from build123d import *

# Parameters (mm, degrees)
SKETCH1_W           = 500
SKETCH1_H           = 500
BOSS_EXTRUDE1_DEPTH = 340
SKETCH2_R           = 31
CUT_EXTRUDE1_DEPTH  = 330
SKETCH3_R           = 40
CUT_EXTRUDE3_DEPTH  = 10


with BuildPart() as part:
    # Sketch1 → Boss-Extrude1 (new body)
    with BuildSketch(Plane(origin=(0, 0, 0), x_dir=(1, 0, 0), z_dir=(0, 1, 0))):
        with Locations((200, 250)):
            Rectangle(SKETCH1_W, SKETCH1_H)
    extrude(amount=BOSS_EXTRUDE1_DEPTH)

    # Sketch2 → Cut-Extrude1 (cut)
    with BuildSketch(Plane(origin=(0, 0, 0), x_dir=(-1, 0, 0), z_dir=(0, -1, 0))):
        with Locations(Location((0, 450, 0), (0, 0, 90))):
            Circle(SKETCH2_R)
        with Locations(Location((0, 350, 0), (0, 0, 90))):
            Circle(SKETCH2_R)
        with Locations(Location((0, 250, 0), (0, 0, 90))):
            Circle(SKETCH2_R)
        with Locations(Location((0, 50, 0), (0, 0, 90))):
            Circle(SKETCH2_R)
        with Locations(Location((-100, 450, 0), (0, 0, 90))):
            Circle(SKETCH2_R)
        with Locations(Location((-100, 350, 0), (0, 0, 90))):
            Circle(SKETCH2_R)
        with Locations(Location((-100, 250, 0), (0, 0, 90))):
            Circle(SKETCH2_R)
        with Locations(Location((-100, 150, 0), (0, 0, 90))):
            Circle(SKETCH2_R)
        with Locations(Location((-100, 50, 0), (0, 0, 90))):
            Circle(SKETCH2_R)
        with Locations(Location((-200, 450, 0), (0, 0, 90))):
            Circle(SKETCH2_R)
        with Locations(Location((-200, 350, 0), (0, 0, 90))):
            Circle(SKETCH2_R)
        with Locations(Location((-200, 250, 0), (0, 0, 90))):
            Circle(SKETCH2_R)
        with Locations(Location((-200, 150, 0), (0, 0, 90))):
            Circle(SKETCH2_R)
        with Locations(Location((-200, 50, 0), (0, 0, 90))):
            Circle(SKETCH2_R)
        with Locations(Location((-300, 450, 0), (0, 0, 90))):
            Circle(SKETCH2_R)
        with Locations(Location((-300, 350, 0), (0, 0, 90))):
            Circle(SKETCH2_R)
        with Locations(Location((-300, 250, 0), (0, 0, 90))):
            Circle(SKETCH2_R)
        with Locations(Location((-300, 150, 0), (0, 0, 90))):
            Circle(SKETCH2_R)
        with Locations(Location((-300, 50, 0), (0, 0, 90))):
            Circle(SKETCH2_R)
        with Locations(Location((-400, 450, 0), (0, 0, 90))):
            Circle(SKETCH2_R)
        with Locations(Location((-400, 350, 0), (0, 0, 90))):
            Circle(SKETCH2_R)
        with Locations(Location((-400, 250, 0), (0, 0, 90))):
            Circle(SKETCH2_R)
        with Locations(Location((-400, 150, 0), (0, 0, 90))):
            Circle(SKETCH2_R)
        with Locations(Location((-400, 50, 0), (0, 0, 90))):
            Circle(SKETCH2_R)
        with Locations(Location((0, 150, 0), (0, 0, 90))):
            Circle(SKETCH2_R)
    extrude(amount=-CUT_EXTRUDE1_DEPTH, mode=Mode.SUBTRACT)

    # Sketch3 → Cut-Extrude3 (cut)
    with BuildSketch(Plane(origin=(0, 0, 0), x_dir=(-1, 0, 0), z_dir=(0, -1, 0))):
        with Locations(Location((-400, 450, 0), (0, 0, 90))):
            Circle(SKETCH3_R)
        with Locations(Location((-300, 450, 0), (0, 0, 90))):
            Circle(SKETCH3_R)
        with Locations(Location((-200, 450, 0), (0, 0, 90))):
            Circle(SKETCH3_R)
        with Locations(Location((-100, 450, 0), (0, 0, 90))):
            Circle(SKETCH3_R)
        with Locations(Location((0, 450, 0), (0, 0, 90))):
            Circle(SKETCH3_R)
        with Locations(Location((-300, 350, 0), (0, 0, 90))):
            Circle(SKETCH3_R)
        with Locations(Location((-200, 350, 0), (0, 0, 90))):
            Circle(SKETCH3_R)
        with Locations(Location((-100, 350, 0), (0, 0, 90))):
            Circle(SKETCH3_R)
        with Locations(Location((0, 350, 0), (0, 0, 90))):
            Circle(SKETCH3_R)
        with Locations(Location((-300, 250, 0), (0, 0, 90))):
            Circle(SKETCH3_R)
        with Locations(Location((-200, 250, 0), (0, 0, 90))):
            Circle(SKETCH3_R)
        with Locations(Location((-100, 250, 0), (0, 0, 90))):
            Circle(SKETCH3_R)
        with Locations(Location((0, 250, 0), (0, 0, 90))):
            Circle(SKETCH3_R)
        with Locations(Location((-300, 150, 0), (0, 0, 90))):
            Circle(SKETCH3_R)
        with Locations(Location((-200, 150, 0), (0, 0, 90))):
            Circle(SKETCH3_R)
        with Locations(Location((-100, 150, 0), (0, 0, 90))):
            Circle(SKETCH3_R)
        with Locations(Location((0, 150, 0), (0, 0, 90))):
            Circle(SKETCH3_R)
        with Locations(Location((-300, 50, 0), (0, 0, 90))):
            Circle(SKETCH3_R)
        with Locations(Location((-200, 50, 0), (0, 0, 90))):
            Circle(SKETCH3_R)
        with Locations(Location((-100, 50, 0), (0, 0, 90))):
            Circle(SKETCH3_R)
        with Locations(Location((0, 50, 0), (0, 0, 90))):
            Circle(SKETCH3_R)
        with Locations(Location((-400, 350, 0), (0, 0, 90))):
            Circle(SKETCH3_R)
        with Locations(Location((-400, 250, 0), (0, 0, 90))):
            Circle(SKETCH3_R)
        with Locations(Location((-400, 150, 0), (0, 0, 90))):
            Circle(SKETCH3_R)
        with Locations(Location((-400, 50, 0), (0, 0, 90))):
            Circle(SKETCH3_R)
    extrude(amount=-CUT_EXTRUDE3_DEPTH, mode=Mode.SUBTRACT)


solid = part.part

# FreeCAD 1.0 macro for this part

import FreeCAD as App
import Part
import Sketcher

V = App.Vector


def add_polygon(sketch, points):
    """Adds a closed chain of lines whose ends are joined by coincident constraints."""
    first, n = sketch.GeometryCount, len(points)
    for a, b in zip(points, points[1:] + points[:1]):
        sketch.addGeometry(Part.LineSegment(App.Vector(*a, 0), App.Vector(*b, 0)), False)
    for i in range(n):
        sketch.addConstraint(Sketcher.Constraint("Coincident", first + i, 2, first + (i + 1) % n, 1))

doc = App.newDocument("Part")
body = doc.addObject("PartDesign::Body", "Body")

sketch1 = body.newObject("Sketcher::SketchObject", "Sketch")
sketch1.AttachmentSupport = (doc.getObject("XZ_Plane"), [""])
sketch1.MapMode = "FlatFace"
add_polygon(sketch1, [(-50, -500), (-50, 0), (450, 0), (450, -500)])
sketch1.addConstraint(Sketcher.Constraint("Vertical", 0))
sketch1.addConstraint(Sketcher.Constraint("Horizontal", 1))
sketch1.addConstraint(Sketcher.Constraint("Vertical", 2))
sketch1.addConstraint(Sketcher.Constraint("Horizontal", 3))
sketch1.addConstraint(Sketcher.Constraint("PointOnObject", 0, 2, -1))
sketch1.addConstraint(Sketcher.Constraint("Equal", 3, 0))
sketch1.addConstraint(Sketcher.Constraint("DistanceX", 1, 1, 1, 2, 500.0))
sketch1.addConstraint(Sketcher.Constraint("DistanceX", 0, 2, -1, 1, 50.0))
pad1 = body.newObject("PartDesign::Pad", "Pad")
pad1.Profile = sketch1
pad1.Length = 340
pad1.Reversed = True

sketch2 = body.newObject("Sketcher::SketchObject", "Sketch001")
sketch2.AttachmentSupport = (doc.getObject("XZ_Plane"), [""])
sketch2.MapMode = "FlatFace"
sketch2.addGeometry(Part.Circle(V(0, -450, 0), V(0, 0, 1), 31), False)
sketch2.addGeometry(Part.Circle(V(0, -350, 0), V(0, 0, 1), 31), False)
sketch2.addGeometry(Part.Circle(V(0, -250, 0), V(0, 0, 1), 31), False)
sketch2.addGeometry(Part.Circle(V(0, -50, 0), V(0, 0, 1), 31), False)
sketch2.addGeometry(Part.Circle(V(100, -450, 0), V(0, 0, 1), 31), False)
sketch2.addGeometry(Part.Circle(V(100, -350, 0), V(0, 0, 1), 31), False)
sketch2.addGeometry(Part.Circle(V(100, -250, 0), V(0, 0, 1), 31), False)
sketch2.addGeometry(Part.Circle(V(100, -150, 0), V(0, 0, 1), 31), False)
sketch2.addGeometry(Part.Circle(V(100, -50, 0), V(0, 0, 1), 31), False)
sketch2.addGeometry(Part.Circle(V(200, -450, 0), V(0, 0, 1), 31), False)
sketch2.addGeometry(Part.Circle(V(200, -350, 0), V(0, 0, 1), 31), False)
sketch2.addGeometry(Part.Circle(V(200, -250, 0), V(0, 0, 1), 31), False)
sketch2.addGeometry(Part.Circle(V(200, -150, 0), V(0, 0, 1), 31), False)
sketch2.addGeometry(Part.Circle(V(200, -50, 0), V(0, 0, 1), 31), False)
sketch2.addGeometry(Part.Circle(V(300, -450, 0), V(0, 0, 1), 31), False)
sketch2.addGeometry(Part.Circle(V(300, -350, 0), V(0, 0, 1), 31), False)
sketch2.addGeometry(Part.Circle(V(300, -250, 0), V(0, 0, 1), 31), False)
sketch2.addGeometry(Part.Circle(V(300, -150, 0), V(0, 0, 1), 31), False)
sketch2.addGeometry(Part.Circle(V(300, -50, 0), V(0, 0, 1), 31), False)
sketch2.addGeometry(Part.Circle(V(400, -450, 0), V(0, 0, 1), 31), False)
sketch2.addGeometry(Part.Circle(V(400, -350, 0), V(0, 0, 1), 31), False)
sketch2.addGeometry(Part.Circle(V(400, -250, 0), V(0, 0, 1), 31), False)
sketch2.addGeometry(Part.Circle(V(400, -150, 0), V(0, 0, 1), 31), False)
sketch2.addGeometry(Part.Circle(V(400, -50, 0), V(0, 0, 1), 31), False)
sketch2.addGeometry(Part.Circle(V(0, -150, 0), V(0, 0, 1), 31), False)
sketch2.addConstraint(Sketcher.Constraint("Equal", 0, 1))
sketch2.addConstraint(Sketcher.Constraint("Equal", 1, 2))
sketch2.addConstraint(Sketcher.Constraint("Equal", 2, 3))
sketch2.addConstraint(Sketcher.Constraint("Equal", 3, 4))
sketch2.addConstraint(Sketcher.Constraint("Equal", 4, 5))
sketch2.addConstraint(Sketcher.Constraint("Equal", 5, 6))
sketch2.addConstraint(Sketcher.Constraint("Equal", 6, 7))
sketch2.addConstraint(Sketcher.Constraint("Equal", 7, 8))
sketch2.addConstraint(Sketcher.Constraint("Equal", 8, 9))
sketch2.addConstraint(Sketcher.Constraint("Equal", 9, 10))
sketch2.addConstraint(Sketcher.Constraint("Equal", 10, 11))
sketch2.addConstraint(Sketcher.Constraint("Equal", 11, 12))
sketch2.addConstraint(Sketcher.Constraint("Equal", 12, 13))
sketch2.addConstraint(Sketcher.Constraint("Equal", 13, 14))
sketch2.addConstraint(Sketcher.Constraint("Equal", 14, 15))
sketch2.addConstraint(Sketcher.Constraint("Equal", 15, 16))
sketch2.addConstraint(Sketcher.Constraint("Equal", 16, 17))
sketch2.addConstraint(Sketcher.Constraint("Equal", 17, 18))
sketch2.addConstraint(Sketcher.Constraint("Equal", 18, 19))
sketch2.addConstraint(Sketcher.Constraint("Equal", 19, 20))
sketch2.addConstraint(Sketcher.Constraint("Equal", 20, 21))
sketch2.addConstraint(Sketcher.Constraint("Equal", 21, 22))
sketch2.addConstraint(Sketcher.Constraint("Equal", 22, 23))
sketch2.addConstraint(Sketcher.Constraint("Equal", 23, 24))
sketch2.addConstraint(Sketcher.Constraint("PointOnObject", 0, 3, -2))
sketch2.addConstraint(Sketcher.Constraint("PointOnObject", 1, 3, -2))
sketch2.addConstraint(Sketcher.Constraint("PointOnObject", 2, 3, -2))
sketch2.addConstraint(Sketcher.Constraint("PointOnObject", 3, 3, -2))
sketch2.addConstraint(Sketcher.Constraint("PointOnObject", 24, 3, -2))
sketch2.addConstraint(Sketcher.Constraint("Horizontal", 0, 3, 4, 3))
sketch2.addConstraint(Sketcher.Constraint("Horizontal", 1, 3, 5, 3))
sketch2.addConstraint(Sketcher.Constraint("Horizontal", 2, 3, 6, 3))
sketch2.addConstraint(Sketcher.Constraint("Horizontal", 3, 3, 8, 3))
sketch2.addConstraint(Sketcher.Constraint("Horizontal", 4, 3, 9, 3))
sketch2.addConstraint(Sketcher.Constraint("Horizontal", 5, 3, 10, 3))
sketch2.addConstraint(Sketcher.Constraint("Horizontal", 6, 3, 11, 3))
sketch2.addConstraint(Sketcher.Constraint("Horizontal", 7, 3, 12, 3))
sketch2.addConstraint(Sketcher.Constraint("Horizontal", 8, 3, 13, 3))
sketch2.addConstraint(Sketcher.Constraint("Horizontal", 9, 3, 14, 3))
sketch2.addConstraint(Sketcher.Constraint("Horizontal", 10, 3, 15, 3))
sketch2.addConstraint(Sketcher.Constraint("Horizontal", 11, 3, 16, 3))
sketch2.addConstraint(Sketcher.Constraint("Horizontal", 12, 3, 17, 3))
sketch2.addConstraint(Sketcher.Constraint("Horizontal", 13, 3, 18, 3))
sketch2.addConstraint(Sketcher.Constraint("Horizontal", 14, 3, 19, 3))
sketch2.addConstraint(Sketcher.Constraint("Horizontal", 15, 3, 20, 3))
sketch2.addConstraint(Sketcher.Constraint("Horizontal", 16, 3, 21, 3))
sketch2.addConstraint(Sketcher.Constraint("Horizontal", 17, 3, 22, 3))
sketch2.addConstraint(Sketcher.Constraint("Horizontal", 18, 3, 23, 3))
sketch2.addConstraint(Sketcher.Constraint("Horizontal", 22, 3, 24, 3))
sketch2.addConstraint(Sketcher.Constraint("Vertical", 4, 3, 5, 3))
sketch2.addConstraint(Sketcher.Constraint("Vertical", 5, 3, 6, 3))
sketch2.addConstraint(Sketcher.Constraint("Vertical", 6, 3, 7, 3))
sketch2.addConstraint(Sketcher.Constraint("Vertical", 7, 3, 8, 3))
sketch2.addConstraint(Sketcher.Constraint("Vertical", 9, 3, 10, 3))
sketch2.addConstraint(Sketcher.Constraint("Vertical", 10, 3, 11, 3))
sketch2.addConstraint(Sketcher.Constraint("Vertical", 11, 3, 12, 3))
sketch2.addConstraint(Sketcher.Constraint("Vertical", 12, 3, 13, 3))
sketch2.addConstraint(Sketcher.Constraint("Vertical", 14, 3, 15, 3))
sketch2.addConstraint(Sketcher.Constraint("Vertical", 15, 3, 16, 3))
sketch2.addConstraint(Sketcher.Constraint("Vertical", 16, 3, 17, 3))
sketch2.addConstraint(Sketcher.Constraint("Vertical", 17, 3, 18, 3))
sketch2.addConstraint(Sketcher.Constraint("Vertical", 19, 3, 20, 3))
sketch2.addConstraint(Sketcher.Constraint("Vertical", 20, 3, 21, 3))
sketch2.addConstraint(Sketcher.Constraint("Vertical", 21, 3, 22, 3))
sketch2.addConstraint(Sketcher.Constraint("Vertical", 22, 3, 23, 3))
sketch2.addConstraint(Sketcher.Constraint("Diameter", 0, 62.0))
sketch2.addConstraint(Sketcher.Constraint("DistanceY", 0, 3, -1, 1, 450.0))
sketch2.addConstraint(Sketcher.Constraint("DistanceY", 1, 3, -1, 1, 350.0))
sketch2.addConstraint(Sketcher.Constraint("DistanceY", 2, 3, -1, 1, 250.0))
sketch2.addConstraint(Sketcher.Constraint("DistanceY", 3, 3, -1, 1, 50.0))
sketch2.addConstraint(Sketcher.Constraint("DistanceX", -1, 1, 4, 3, 100.0))
sketch2.addConstraint(Sketcher.Constraint("DistanceY", 7, 3, -1, 1, 150.0))
sketch2.addConstraint(Sketcher.Constraint("DistanceX", -1, 1, 9, 3, 200.0))
sketch2.addConstraint(Sketcher.Constraint("DistanceX", -1, 1, 14, 3, 300.0))
sketch2.addConstraint(Sketcher.Constraint("DistanceX", -1, 1, 19, 3, 400.0))
pocket1 = body.newObject("PartDesign::Pocket", "Pocket")
pocket1.Profile = sketch2
pocket1.Length = 330

sketch3 = body.newObject("Sketcher::SketchObject", "Sketch002")
sketch3.AttachmentSupport = (doc.getObject("XZ_Plane"), [""])
sketch3.MapMode = "FlatFace"
sketch3.addGeometry(Part.Circle(V(400, -450, 0), V(0, 0, 1), 40), False)
sketch3.addGeometry(Part.Circle(V(300, -450, 0), V(0, 0, 1), 40), False)
sketch3.addGeometry(Part.Circle(V(200, -450, 0), V(0, 0, 1), 40), False)
sketch3.addGeometry(Part.Circle(V(100, -450, 0), V(0, 0, 1), 40), False)
sketch3.addGeometry(Part.Circle(V(0, -450, 0), V(0, 0, 1), 40), False)
sketch3.addGeometry(Part.Circle(V(300, -350, 0), V(0, 0, 1), 40), False)
sketch3.addGeometry(Part.Circle(V(200, -350, 0), V(0, 0, 1), 40), False)
sketch3.addGeometry(Part.Circle(V(100, -350, 0), V(0, 0, 1), 40), False)
sketch3.addGeometry(Part.Circle(V(0, -350, 0), V(0, 0, 1), 40), False)
sketch3.addGeometry(Part.Circle(V(300, -250, 0), V(0, 0, 1), 40), False)
sketch3.addGeometry(Part.Circle(V(200, -250, 0), V(0, 0, 1), 40), False)
sketch3.addGeometry(Part.Circle(V(100, -250, 0), V(0, 0, 1), 40), False)
sketch3.addGeometry(Part.Circle(V(0, -250, 0), V(0, 0, 1), 40), False)
sketch3.addGeometry(Part.Circle(V(300, -150, 0), V(0, 0, 1), 40), False)
sketch3.addGeometry(Part.Circle(V(200, -150, 0), V(0, 0, 1), 40), False)
sketch3.addGeometry(Part.Circle(V(100, -150, 0), V(0, 0, 1), 40), False)
sketch3.addGeometry(Part.Circle(V(0, -150, 0), V(0, 0, 1), 40), False)
sketch3.addGeometry(Part.Circle(V(300, -50, 0), V(0, 0, 1), 40), False)
sketch3.addGeometry(Part.Circle(V(200, -50, 0), V(0, 0, 1), 40), False)
sketch3.addGeometry(Part.Circle(V(100, -50, 0), V(0, 0, 1), 40), False)
sketch3.addGeometry(Part.Circle(V(0, -50, 0), V(0, 0, 1), 40), False)
sketch3.addGeometry(Part.Circle(V(400, -350, 0), V(0, 0, 1), 40), False)
sketch3.addGeometry(Part.Circle(V(400, -250, 0), V(0, 0, 1), 40), False)
sketch3.addGeometry(Part.Circle(V(400, -150, 0), V(0, 0, 1), 40), False)
sketch3.addGeometry(Part.Circle(V(400, -50, 0), V(0, 0, 1), 40), False)
sketch3.addConstraint(Sketcher.Constraint("Equal", 0, 1))
sketch3.addConstraint(Sketcher.Constraint("Equal", 1, 2))
sketch3.addConstraint(Sketcher.Constraint("Equal", 2, 3))
sketch3.addConstraint(Sketcher.Constraint("Equal", 3, 4))
sketch3.addConstraint(Sketcher.Constraint("Equal", 4, 5))
sketch3.addConstraint(Sketcher.Constraint("Equal", 5, 6))
sketch3.addConstraint(Sketcher.Constraint("Equal", 6, 7))
sketch3.addConstraint(Sketcher.Constraint("Equal", 7, 8))
sketch3.addConstraint(Sketcher.Constraint("Equal", 8, 9))
sketch3.addConstraint(Sketcher.Constraint("Equal", 9, 10))
sketch3.addConstraint(Sketcher.Constraint("Equal", 10, 11))
sketch3.addConstraint(Sketcher.Constraint("Equal", 11, 12))
sketch3.addConstraint(Sketcher.Constraint("Equal", 12, 13))
sketch3.addConstraint(Sketcher.Constraint("Equal", 13, 14))
sketch3.addConstraint(Sketcher.Constraint("Equal", 14, 15))
sketch3.addConstraint(Sketcher.Constraint("Equal", 15, 16))
sketch3.addConstraint(Sketcher.Constraint("Equal", 16, 17))
sketch3.addConstraint(Sketcher.Constraint("Equal", 17, 18))
sketch3.addConstraint(Sketcher.Constraint("Equal", 18, 19))
sketch3.addConstraint(Sketcher.Constraint("Equal", 19, 20))
sketch3.addConstraint(Sketcher.Constraint("Equal", 20, 21))
sketch3.addConstraint(Sketcher.Constraint("Equal", 21, 22))
sketch3.addConstraint(Sketcher.Constraint("Equal", 22, 23))
sketch3.addConstraint(Sketcher.Constraint("Equal", 23, 24))
sketch3.addConstraint(Sketcher.Constraint("PointOnObject", 4, 3, -2))
sketch3.addConstraint(Sketcher.Constraint("PointOnObject", 8, 3, -2))
sketch3.addConstraint(Sketcher.Constraint("PointOnObject", 12, 3, -2))
sketch3.addConstraint(Sketcher.Constraint("PointOnObject", 16, 3, -2))
sketch3.addConstraint(Sketcher.Constraint("PointOnObject", 20, 3, -2))
sketch3.addConstraint(Sketcher.Constraint("Horizontal", 0, 3, 1, 3))
sketch3.addConstraint(Sketcher.Constraint("Horizontal", 1, 3, 2, 3))
sketch3.addConstraint(Sketcher.Constraint("Horizontal", 2, 3, 3, 3))
sketch3.addConstraint(Sketcher.Constraint("Horizontal", 3, 3, 4, 3))
sketch3.addConstraint(Sketcher.Constraint("Horizontal", 5, 3, 6, 3))
sketch3.addConstraint(Sketcher.Constraint("Horizontal", 6, 3, 7, 3))
sketch3.addConstraint(Sketcher.Constraint("Horizontal", 7, 3, 8, 3))
sketch3.addConstraint(Sketcher.Constraint("Horizontal", 9, 3, 10, 3))
sketch3.addConstraint(Sketcher.Constraint("Horizontal", 10, 3, 11, 3))
sketch3.addConstraint(Sketcher.Constraint("Horizontal", 11, 3, 12, 3))
sketch3.addConstraint(Sketcher.Constraint("Horizontal", 13, 3, 14, 3))
sketch3.addConstraint(Sketcher.Constraint("Horizontal", 14, 3, 15, 3))
sketch3.addConstraint(Sketcher.Constraint("Horizontal", 15, 3, 16, 3))
sketch3.addConstraint(Sketcher.Constraint("Horizontal", 17, 3, 18, 3))
sketch3.addConstraint(Sketcher.Constraint("Horizontal", 18, 3, 19, 3))
sketch3.addConstraint(Sketcher.Constraint("Horizontal", 19, 3, 20, 3))
sketch3.addConstraint(Sketcher.Constraint("Horizontal", 8, 3, 21, 3))
sketch3.addConstraint(Sketcher.Constraint("Horizontal", 12, 3, 22, 3))
sketch3.addConstraint(Sketcher.Constraint("Horizontal", 16, 3, 23, 3))
sketch3.addConstraint(Sketcher.Constraint("Horizontal", 20, 3, 24, 3))
sketch3.addConstraint(Sketcher.Constraint("Vertical", 1, 3, 5, 3))
sketch3.addConstraint(Sketcher.Constraint("Vertical", 2, 3, 6, 3))
sketch3.addConstraint(Sketcher.Constraint("Vertical", 3, 3, 7, 3))
sketch3.addConstraint(Sketcher.Constraint("Vertical", 5, 3, 9, 3))
sketch3.addConstraint(Sketcher.Constraint("Vertical", 6, 3, 10, 3))
sketch3.addConstraint(Sketcher.Constraint("Vertical", 7, 3, 11, 3))
sketch3.addConstraint(Sketcher.Constraint("Vertical", 9, 3, 13, 3))
sketch3.addConstraint(Sketcher.Constraint("Vertical", 10, 3, 14, 3))
sketch3.addConstraint(Sketcher.Constraint("Vertical", 11, 3, 15, 3))
sketch3.addConstraint(Sketcher.Constraint("Vertical", 13, 3, 17, 3))
sketch3.addConstraint(Sketcher.Constraint("Vertical", 14, 3, 18, 3))
sketch3.addConstraint(Sketcher.Constraint("Vertical", 15, 3, 19, 3))
sketch3.addConstraint(Sketcher.Constraint("Vertical", 0, 3, 21, 3))
sketch3.addConstraint(Sketcher.Constraint("Vertical", 21, 3, 22, 3))
sketch3.addConstraint(Sketcher.Constraint("Vertical", 22, 3, 23, 3))
sketch3.addConstraint(Sketcher.Constraint("Vertical", 23, 3, 24, 3))
sketch3.addConstraint(Sketcher.Constraint("Diameter", 0, 80.0))
sketch3.addConstraint(Sketcher.Constraint("DistanceX", -1, 1, 0, 3, 400.0))
sketch3.addConstraint(Sketcher.Constraint("DistanceY", 0, 3, -1, 1, 450.0))
sketch3.addConstraint(Sketcher.Constraint("DistanceX", -1, 1, 1, 3, 300.0))
sketch3.addConstraint(Sketcher.Constraint("DistanceX", -1, 1, 2, 3, 200.0))
sketch3.addConstraint(Sketcher.Constraint("DistanceX", -1, 1, 3, 3, 100.0))
sketch3.addConstraint(Sketcher.Constraint("DistanceY", 5, 3, -1, 1, 350.0))
sketch3.addConstraint(Sketcher.Constraint("DistanceY", 9, 3, -1, 1, 250.0))
sketch3.addConstraint(Sketcher.Constraint("DistanceY", 13, 3, -1, 1, 150.0))
sketch3.addConstraint(Sketcher.Constraint("DistanceY", 17, 3, -1, 1, 50.0))
pocket2 = body.newObject("PartDesign::Pocket", "Pocket001")
pocket2.Profile = sketch3
pocket2.Length = 10

doc.recompute()
